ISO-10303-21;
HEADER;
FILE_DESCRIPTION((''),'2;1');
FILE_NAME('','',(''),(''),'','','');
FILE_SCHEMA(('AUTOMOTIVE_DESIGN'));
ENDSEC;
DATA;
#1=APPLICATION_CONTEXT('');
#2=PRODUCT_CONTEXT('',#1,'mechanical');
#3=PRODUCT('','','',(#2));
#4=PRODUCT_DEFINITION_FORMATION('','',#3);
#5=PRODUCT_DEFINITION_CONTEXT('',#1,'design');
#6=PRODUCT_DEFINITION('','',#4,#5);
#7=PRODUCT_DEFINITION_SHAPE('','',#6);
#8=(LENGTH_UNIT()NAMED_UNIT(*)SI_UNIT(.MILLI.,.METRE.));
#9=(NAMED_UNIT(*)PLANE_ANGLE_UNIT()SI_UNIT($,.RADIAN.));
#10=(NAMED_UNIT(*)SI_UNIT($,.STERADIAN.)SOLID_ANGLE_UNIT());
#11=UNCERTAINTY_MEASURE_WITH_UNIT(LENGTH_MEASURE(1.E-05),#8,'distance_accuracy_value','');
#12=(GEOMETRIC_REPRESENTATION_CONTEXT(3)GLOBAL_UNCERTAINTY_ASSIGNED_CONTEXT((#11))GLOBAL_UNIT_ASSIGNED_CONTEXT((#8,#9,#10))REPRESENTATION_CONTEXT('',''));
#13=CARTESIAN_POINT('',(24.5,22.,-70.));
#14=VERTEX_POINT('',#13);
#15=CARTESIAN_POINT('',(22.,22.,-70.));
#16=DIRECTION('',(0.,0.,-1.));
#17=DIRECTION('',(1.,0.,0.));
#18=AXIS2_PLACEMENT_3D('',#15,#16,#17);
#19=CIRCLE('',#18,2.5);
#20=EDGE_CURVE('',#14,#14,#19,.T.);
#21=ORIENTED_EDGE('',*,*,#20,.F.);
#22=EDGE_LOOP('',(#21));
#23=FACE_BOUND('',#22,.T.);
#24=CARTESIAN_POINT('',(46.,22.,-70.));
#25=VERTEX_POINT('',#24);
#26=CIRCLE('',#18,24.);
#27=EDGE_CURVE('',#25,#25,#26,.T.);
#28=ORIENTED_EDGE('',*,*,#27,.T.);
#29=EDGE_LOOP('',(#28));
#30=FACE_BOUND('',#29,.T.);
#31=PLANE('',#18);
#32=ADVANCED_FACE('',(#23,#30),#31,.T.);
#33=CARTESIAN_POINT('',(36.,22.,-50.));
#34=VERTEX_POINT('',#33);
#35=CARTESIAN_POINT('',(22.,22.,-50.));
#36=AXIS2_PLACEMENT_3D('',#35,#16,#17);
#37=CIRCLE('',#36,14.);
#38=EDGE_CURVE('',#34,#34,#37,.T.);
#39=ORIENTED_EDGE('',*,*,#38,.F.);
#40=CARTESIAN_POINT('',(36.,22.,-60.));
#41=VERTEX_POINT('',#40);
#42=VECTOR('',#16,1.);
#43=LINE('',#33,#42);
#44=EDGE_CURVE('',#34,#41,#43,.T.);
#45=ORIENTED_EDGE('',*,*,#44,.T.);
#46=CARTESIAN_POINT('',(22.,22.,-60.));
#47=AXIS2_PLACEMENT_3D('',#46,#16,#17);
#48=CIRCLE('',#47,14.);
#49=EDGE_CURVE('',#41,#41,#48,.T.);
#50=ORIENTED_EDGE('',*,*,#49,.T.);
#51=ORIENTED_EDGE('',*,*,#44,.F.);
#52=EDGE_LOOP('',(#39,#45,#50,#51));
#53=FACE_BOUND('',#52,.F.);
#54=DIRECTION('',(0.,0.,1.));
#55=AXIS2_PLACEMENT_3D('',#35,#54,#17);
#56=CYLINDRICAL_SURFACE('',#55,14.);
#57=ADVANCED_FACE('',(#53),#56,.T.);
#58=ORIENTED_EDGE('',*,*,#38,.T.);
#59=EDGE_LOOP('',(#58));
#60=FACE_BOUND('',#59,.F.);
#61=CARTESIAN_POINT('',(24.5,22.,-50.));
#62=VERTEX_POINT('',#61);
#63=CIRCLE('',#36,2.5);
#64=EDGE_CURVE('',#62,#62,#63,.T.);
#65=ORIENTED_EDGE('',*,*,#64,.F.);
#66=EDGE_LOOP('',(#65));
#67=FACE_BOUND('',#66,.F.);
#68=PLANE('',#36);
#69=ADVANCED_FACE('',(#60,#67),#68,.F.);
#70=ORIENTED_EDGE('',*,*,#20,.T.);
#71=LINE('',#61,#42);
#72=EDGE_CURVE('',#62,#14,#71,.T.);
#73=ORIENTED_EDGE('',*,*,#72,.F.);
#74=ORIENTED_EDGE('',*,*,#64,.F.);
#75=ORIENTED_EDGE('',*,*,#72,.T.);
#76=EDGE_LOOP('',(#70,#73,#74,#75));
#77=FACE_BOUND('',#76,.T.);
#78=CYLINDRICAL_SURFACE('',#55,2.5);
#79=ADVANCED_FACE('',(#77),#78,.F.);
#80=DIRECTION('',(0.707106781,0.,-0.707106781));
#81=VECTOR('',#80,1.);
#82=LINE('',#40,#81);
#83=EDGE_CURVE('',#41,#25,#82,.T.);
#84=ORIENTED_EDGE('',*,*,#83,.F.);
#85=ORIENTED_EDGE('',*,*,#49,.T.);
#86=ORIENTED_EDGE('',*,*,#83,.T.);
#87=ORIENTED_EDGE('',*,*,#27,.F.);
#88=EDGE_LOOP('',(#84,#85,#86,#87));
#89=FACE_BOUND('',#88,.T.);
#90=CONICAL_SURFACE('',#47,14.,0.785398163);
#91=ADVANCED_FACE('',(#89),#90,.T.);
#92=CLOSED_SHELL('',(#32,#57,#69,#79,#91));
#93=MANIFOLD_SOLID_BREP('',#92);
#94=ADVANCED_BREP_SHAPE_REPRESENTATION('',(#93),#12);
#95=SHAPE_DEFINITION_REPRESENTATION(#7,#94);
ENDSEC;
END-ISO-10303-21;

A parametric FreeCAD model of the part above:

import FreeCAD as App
import Part
import Sketcher

V = App.Vector

doc = App.newDocument("Part")
body = doc.addObject("PartDesign::Body", "Body")

# Sketch on XY plane
sketch1 = body.newObject("Sketcher::SketchObject", "Sketch")
sketch1.AttachmentSupport = (doc.getObject("XY_Plane"), [""])
sketch1.MapMode = "FlatFace"
sketch1.addGeometry(Part.Circle(V(0, 0, 0), V(0, 0, 1), 2.5), False)
sketch1.addConstraint(Sketcher.Constraint("Coincident", 0, 3, -1, 1))
sketch1.addConstraint(Sketcher.Constraint("Diameter", 0, 5.0))
pad1 = body.newObject("PartDesign::Pad", "Pad")
pad1.Profile = sketch1
pad1.Length = 20
body2 = doc.addObject("PartDesign::Body", "Body001")

# Sketch on XZ plane
sketch2 = body2.newObject("Sketcher::SketchObject", "Sketch001")
sketch2.AttachmentSupport = (doc.getObject("XZ_Plane001"), [""])
sketch2.MapMode = "FlatFace"
sketch2.addGeometry(Part.LineSegment(V(0, 10, 0), V(14, 10, 0)), False)
sketch2.addGeometry(Part.LineSegment(V(14, 10, 0), V(24, 20, 0)), False)
sketch2.addGeometry(Part.LineSegment(V(24, 20, 0), V(0, 20, 0)), False)
sketch2.addGeometry(Part.LineSegment(V(0, 20, 0), V(0, 10, 0)), False)
sketch2.addConstraint(Sketcher.Constraint("Coincident", 0, 2, 1, 1))
sketch2.addConstraint(Sketcher.Constraint("Coincident", 1, 2, 2, 1))
sketch2.addConstraint(Sketcher.Constraint("Coincident", 2, 2, 3, 1))
sketch2.addConstraint(Sketcher.Constraint("Coincident", 3, 2, 0, 1))
sketch2.addConstraint(Sketcher.Constraint("Horizontal", 0))
sketch2.addConstraint(Sketcher.Constraint("Horizontal", 2))
sketch2.addConstraint(Sketcher.Constraint("Vertical", 3))
sketch2.addConstraint(Sketcher.Constraint("PointOnObject", 2, 2, -2))
sketch2.addConstraint(Sketcher.Constraint("DistanceX", 0, 1, 0, 2, 14.0))
sketch2.addConstraint(Sketcher.Constraint("DistanceX", 2, 2, 2, 1, 24.0))
sketch2.addConstraint(Sketcher.Constraint("DistanceY", 3, 2, 3, 1, 10.0))
sketch2.addConstraint(Sketcher.Constraint("DistanceY", -1, 1, 0, 2, 10.0))
revolution = body2.newObject("PartDesign::Revolution", "Revolution")
revolution.Profile = sketch2
revolution.ReferenceAxis = (sketch2, ["V_Axis"])
revolution.Angle = 360
body3 = doc.addObject("PartDesign::Body", "Body002")

# Sketch on XY plane
sketch3 = body3.newObject("Sketcher::SketchObject", "Sketch002")
sketch3.AttachmentSupport = (doc.getObject("XY_Plane002"), [""])
sketch3.MapMode = "FlatFace"
sketch3.addGeometry(Part.Circle(V(0, 0, 0), V(0, 0, 1), 14), False)
sketch3.addConstraint(Sketcher.Constraint("Coincident", 0, 3, -1, 1))
sketch3.addConstraint(Sketcher.Constraint("Diameter", 0, 28.0))
pad2 = body3.newObject("PartDesign::Pad", "Pad001")
pad2.Profile = sketch3
pad2.Length = 10
doc.recompute()

boolean = body3.newObject("PartDesign::Boolean", "Boolean")
boolean.Type = "Fuse"
boolean.addObjects([body2])
doc.recompute()

boolean2 = body3.newObject("PartDesign::Boolean", "Boolean001")
boolean2.Type = "Cut"
boolean2.addObjects([body])
body4 = doc.addObject("PartDesign::Body", "Body003")
doc.recompute()

body3.Placement = App.Placement(V(22, 22, -50), App.Rotation(V(1, 0, 0), 180))
boolean3 = body4.newObject("PartDesign::Boolean", "Boolean002")
boolean3.Type = "Fuse"
boolean3.addObjects([body3])

doc.recompute()
